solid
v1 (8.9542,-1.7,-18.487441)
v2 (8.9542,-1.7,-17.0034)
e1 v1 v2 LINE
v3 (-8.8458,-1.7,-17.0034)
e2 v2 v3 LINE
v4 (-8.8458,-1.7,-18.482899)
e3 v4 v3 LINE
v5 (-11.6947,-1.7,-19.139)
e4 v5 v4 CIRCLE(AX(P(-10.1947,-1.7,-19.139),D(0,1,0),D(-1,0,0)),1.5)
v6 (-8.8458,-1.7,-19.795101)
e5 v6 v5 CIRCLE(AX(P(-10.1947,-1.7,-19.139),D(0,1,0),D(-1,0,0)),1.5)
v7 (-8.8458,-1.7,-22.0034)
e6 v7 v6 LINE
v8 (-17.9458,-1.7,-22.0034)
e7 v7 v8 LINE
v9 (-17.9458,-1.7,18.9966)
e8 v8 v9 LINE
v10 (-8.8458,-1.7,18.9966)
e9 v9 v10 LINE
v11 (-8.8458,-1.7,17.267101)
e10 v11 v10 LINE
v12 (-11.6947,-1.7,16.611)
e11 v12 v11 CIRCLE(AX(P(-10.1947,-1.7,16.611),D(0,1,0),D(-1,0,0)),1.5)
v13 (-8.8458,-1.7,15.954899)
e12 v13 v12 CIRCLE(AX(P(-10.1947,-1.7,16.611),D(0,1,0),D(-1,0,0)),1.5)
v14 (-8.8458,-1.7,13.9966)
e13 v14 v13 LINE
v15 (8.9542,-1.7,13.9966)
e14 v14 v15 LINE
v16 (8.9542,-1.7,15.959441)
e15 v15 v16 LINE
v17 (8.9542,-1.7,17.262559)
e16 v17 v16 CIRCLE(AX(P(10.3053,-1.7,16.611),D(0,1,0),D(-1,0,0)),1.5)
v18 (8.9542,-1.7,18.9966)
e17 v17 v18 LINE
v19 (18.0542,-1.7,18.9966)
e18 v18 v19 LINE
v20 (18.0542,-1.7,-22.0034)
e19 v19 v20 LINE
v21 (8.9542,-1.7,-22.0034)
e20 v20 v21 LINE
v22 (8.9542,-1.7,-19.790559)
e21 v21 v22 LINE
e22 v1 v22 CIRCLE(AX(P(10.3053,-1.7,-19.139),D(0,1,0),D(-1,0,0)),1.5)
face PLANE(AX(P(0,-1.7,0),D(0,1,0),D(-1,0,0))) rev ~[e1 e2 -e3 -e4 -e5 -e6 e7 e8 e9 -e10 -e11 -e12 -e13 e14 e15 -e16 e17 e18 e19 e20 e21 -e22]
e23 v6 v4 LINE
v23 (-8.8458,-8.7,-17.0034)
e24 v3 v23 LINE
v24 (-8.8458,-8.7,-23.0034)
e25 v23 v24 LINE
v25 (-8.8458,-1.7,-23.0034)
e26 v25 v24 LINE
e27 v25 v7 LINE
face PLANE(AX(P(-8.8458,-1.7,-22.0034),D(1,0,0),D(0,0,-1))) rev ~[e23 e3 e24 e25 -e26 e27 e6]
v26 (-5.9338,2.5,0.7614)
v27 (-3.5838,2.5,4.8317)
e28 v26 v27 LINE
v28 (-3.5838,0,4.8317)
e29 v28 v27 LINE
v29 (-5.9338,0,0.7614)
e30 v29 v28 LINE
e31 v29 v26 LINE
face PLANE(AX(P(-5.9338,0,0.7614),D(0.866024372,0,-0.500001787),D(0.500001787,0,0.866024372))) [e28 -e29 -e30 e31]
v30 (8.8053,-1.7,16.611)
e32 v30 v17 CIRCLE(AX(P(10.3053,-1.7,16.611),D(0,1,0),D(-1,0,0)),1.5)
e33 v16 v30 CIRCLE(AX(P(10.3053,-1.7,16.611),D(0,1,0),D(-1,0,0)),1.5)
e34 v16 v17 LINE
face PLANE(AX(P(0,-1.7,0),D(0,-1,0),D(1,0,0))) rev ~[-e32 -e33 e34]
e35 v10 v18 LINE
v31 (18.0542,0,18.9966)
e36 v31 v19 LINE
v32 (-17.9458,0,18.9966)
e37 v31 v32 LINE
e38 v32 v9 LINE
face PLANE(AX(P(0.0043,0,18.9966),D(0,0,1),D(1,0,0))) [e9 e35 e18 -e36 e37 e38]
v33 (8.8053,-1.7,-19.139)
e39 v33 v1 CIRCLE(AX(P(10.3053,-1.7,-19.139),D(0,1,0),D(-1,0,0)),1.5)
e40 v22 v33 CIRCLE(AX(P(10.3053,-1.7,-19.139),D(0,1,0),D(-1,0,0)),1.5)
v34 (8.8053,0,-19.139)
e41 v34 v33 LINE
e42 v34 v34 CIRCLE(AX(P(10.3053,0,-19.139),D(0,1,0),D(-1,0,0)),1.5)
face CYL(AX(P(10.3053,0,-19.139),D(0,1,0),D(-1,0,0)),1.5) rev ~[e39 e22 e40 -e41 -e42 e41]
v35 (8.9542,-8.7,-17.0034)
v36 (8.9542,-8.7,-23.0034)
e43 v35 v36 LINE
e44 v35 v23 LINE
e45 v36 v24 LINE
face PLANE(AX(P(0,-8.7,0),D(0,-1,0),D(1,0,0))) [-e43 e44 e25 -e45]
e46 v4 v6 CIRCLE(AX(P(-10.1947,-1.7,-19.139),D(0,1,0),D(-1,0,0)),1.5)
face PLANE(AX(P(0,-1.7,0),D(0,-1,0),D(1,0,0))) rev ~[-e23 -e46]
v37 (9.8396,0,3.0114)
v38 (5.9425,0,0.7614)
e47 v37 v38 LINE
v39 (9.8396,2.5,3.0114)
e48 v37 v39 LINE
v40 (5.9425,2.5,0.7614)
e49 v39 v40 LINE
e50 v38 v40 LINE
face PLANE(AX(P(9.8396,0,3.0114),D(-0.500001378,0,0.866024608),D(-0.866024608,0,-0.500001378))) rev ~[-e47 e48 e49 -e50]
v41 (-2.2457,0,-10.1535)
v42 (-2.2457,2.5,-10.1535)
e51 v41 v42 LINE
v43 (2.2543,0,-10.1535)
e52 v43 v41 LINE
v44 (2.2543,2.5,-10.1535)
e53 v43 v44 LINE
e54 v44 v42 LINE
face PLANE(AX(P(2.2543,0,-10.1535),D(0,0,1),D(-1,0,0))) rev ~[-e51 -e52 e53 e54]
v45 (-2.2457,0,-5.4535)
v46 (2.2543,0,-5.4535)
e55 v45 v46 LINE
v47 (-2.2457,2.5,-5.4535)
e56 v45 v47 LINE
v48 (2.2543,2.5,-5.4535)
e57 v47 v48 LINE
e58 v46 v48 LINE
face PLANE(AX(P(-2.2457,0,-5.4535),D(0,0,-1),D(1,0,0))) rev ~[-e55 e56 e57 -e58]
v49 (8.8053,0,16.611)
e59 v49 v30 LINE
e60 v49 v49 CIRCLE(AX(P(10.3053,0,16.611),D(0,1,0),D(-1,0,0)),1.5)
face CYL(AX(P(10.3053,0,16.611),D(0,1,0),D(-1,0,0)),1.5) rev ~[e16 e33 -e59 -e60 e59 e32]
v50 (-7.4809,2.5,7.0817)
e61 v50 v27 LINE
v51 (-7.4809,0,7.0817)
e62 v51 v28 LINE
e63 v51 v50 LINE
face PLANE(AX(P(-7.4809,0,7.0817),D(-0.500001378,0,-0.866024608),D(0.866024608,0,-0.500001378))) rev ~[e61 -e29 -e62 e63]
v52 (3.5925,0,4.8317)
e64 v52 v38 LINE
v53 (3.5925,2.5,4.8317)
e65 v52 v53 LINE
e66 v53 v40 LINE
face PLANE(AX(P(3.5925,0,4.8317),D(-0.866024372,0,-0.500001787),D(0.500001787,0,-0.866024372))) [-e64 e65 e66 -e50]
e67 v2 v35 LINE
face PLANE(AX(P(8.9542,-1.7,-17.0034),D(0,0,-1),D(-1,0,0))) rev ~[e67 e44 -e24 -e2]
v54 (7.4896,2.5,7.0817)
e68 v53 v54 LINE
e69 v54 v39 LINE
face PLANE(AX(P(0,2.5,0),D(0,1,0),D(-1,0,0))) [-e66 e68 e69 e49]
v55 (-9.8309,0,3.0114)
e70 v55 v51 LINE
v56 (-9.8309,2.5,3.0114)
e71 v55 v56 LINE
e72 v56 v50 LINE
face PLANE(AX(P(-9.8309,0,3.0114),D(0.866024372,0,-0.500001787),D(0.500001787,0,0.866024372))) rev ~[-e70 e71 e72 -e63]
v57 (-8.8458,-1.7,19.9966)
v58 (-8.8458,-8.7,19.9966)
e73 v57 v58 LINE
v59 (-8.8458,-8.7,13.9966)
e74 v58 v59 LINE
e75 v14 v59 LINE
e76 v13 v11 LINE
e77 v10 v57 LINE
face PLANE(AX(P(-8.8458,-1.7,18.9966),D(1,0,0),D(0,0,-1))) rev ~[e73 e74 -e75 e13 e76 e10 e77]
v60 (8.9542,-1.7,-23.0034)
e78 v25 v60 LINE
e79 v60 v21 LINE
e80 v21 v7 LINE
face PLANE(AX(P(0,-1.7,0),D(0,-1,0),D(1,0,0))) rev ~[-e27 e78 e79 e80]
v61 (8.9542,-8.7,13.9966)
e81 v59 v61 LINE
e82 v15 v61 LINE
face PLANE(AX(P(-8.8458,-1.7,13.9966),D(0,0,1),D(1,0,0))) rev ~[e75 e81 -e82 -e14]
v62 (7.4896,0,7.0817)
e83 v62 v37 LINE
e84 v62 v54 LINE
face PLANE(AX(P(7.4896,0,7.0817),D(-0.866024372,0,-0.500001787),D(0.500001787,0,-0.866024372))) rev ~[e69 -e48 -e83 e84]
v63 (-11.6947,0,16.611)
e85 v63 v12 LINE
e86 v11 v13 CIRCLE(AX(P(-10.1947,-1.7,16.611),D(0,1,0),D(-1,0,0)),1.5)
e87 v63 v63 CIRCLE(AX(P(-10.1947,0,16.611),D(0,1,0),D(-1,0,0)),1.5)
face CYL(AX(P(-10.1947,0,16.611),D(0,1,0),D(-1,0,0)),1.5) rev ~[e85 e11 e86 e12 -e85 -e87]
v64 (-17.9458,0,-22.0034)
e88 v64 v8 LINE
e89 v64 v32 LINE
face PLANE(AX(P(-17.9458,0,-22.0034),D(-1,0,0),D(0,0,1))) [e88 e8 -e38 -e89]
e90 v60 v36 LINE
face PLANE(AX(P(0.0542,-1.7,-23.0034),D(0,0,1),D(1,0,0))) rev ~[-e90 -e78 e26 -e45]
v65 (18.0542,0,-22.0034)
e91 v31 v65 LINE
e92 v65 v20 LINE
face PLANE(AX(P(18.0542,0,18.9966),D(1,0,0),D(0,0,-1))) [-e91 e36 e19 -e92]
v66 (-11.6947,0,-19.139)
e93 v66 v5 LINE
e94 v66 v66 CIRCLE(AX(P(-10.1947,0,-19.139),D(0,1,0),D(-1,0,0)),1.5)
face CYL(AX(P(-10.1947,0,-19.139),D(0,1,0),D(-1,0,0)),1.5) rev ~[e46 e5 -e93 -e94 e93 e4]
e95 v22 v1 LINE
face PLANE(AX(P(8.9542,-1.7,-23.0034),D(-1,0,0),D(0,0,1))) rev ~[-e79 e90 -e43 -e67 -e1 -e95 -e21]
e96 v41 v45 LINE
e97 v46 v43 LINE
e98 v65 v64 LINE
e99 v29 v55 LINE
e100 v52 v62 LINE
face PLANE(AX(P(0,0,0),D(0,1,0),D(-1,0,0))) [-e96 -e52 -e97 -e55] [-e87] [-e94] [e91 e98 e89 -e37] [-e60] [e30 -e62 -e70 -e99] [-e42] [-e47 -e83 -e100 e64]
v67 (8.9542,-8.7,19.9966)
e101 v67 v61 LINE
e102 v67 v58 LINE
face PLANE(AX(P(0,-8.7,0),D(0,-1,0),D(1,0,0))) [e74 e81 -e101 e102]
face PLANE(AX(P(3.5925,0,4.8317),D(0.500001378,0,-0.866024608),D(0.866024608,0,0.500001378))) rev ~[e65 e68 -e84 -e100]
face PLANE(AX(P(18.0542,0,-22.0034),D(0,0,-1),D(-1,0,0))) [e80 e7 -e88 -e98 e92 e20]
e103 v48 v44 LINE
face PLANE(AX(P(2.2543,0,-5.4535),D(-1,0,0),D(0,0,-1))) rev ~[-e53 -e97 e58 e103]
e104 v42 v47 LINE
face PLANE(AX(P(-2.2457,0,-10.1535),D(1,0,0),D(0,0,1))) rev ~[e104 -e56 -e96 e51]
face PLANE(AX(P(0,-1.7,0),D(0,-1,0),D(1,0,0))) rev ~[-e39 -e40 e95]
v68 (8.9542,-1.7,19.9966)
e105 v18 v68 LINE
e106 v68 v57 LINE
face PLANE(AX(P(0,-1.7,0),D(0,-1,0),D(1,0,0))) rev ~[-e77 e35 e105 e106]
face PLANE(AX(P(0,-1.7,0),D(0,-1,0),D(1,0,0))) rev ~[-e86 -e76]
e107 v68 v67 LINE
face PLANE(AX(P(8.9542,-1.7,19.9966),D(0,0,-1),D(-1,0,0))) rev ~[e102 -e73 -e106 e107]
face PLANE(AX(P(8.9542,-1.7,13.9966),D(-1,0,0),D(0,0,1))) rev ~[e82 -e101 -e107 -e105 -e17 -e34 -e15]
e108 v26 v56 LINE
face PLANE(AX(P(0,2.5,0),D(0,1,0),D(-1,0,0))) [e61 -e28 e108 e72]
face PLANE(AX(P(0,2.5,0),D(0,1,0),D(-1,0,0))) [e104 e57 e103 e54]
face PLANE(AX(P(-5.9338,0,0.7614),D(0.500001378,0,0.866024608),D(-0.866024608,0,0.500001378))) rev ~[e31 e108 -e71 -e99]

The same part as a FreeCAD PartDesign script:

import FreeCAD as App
import Part
import Sketcher
Q = App.Units.Quantity

doc = App.newDocument("Part")
body = doc.addObject("PartDesign::Body", "Body")

# Sketch on XZ plane
sketch1 = body.newObject("Sketcher::SketchObject", "Sketch")
sketch1.AttachmentSupport = (doc.getObject("XZ_Plane"), [""])
sketch1.MapMode = "FlatFace"
sketch1.addGeometry(Part.LineSegment(App.Vector(18.1, 19, 0), App.Vector(18.1, -22, 0)), False)
sketch1.addGeometry(Part.LineSegment(App.Vector(18.1, -22, 0), App.Vector(-17.9, -22, 0)), False)
sketch1.addGeometry(Part.LineSegment(App.Vector(-17.9, -22, 0), App.Vector(-17.9, 19, 0)), False)
sketch1.addGeometry(Part.LineSegment(App.Vector(-17.9, 19, 0), App.Vector(18.1, 19, 0)), False)
sketch1.addGeometry(Part.Circle(App.Vector(10.3, -19.1, 0), App.Vector(0, 0, 1), 1.5), False)
sketch1.addGeometry(Part.Circle(App.Vector(-10.2, -19.1, 0), App.Vector(0, 0, 1), 1.5), False)
sketch1.addGeometry(Part.Circle(App.Vector(10.3, 16.6, 0), App.Vector(0, 0, 1), 1.5), False)
sketch1.addGeometry(Part.Circle(App.Vector(-10.2, 16.6, 0), App.Vector(0, 0, 1), 1.5), False)
sketch1.addConstraint(Sketcher.Constraint("Coincident", 0, 2, 1, 1))
sketch1.addConstraint(Sketcher.Constraint("Coincident", 1, 2, 2, 1))
sketch1.addConstraint(Sketcher.Constraint("Coincident", 2, 2, 3, 1))
sketch1.addConstraint(Sketcher.Constraint("Coincident", 3, 2, 0, 1))
sketch1.addConstraint(Sketcher.Constraint("Vertical", 0))
sketch1.addConstraint(Sketcher.Constraint("Horizontal", 1))
sketch1.addConstraint(Sketcher.Constraint("Vertical", 2))
sketch1.addConstraint(Sketcher.Constraint("Horizontal", 3))
sketch1.addConstraint(Sketcher.Constraint("Equal", 4, 5))
sketch1.addConstraint(Sketcher.Constraint("Equal", 5, 6))
sketch1.addConstraint(Sketcher.Constraint("Equal", 6, 7))
sketch1.addConstraint(Sketcher.Constraint("Horizontal", 4, 3, 5, 3))
sketch1.addConstraint(Sketcher.Constraint("Horizontal", 6, 3, 7, 3))
sketch1.addConstraint(Sketcher.Constraint("Vertical", 4, 3, 6, 3))
sketch1.addConstraint(Sketcher.Constraint("Vertical", 5, 3, 7, 3))
sketch1.addConstraint(Sketcher.Constraint("Diameter", 4, 3.0))
sketch1.addConstraint(Sketcher.Constraint("DistanceX", 1, 2, 1, 1, 36.0))
sketch1.addConstraint(Sketcher.Constraint("DistanceY", 0, 2, 0, 1, 41.0))
sketch1.addConstraint(Sketcher.Constraint("DistanceX", 5, 3, 4, 3, 20.5))
sketch1.addConstraint(Sketcher.Constraint("DistanceY", 4, 3, 6, 3, 35.75))
sketch1.addConstraint(Sketcher.Constraint("DistanceY", 4, 3, -1, 1, 19.139))
sketch1.addConstraint(Sketcher.Constraint("DistanceX", 4, 3, 0, 2, 7.749))
sketch1.addConstraint(Sketcher.Constraint("DistanceX", -1, 1, 4, 3, 10.3053))
sketch1.addConstraint(Sketcher.Constraint("DistanceY", 0, 2, -1, 1, 22.0034))
pad1 = body.newObject("PartDesign::Pad", "Pad")
pad1.Profile = sketch1
pad1.Length = 1.7

# Sketch on XZ plane
sketch2 = body.newObject("Sketcher::SketchObject", "Sketch001")
sketch2.AttachmentSupport = (doc.getObject("XZ_Plane"), [""])
sketch2.MapMode = "FlatFace"
sketch2.addGeometry(Part.LineSegment(App.Vector(-2.2, -5.5, 0), App.Vector(2.3, -5.5, 0)), False)
sketch2.addGeometry(Part.LineSegment(App.Vector(2.3, -5.5, 0), App.Vector(2.3, -10.2, 0)), False)
sketch2.addGeometry(Part.LineSegment(App.Vector(2.3, -10.2, 0), App.Vector(-2.2, -10.2, 0)), False)
sketch2.addGeometry(Part.LineSegment(App.Vector(-2.2, -10.2, 0), App.Vector(-2.2, -5.5, 0)), False)
sketch2.addGeometry(Part.LineSegment(App.Vector(-3.6, 4.8, 0), App.Vector(-5.9, 0.8, 0)), False)
sketch2.addGeometry(Part.LineSegment(App.Vector(-5.9, 0.8, 0), App.Vector(-9.8, 3, 0)), False)
sketch2.addGeometry(Part.LineSegment(App.Vector(-9.8, 3, 0), App.Vector(-7.5, 7.1, 0)), False)
sketch2.addGeometry(Part.LineSegment(App.Vector(-7.5, 7.1, 0), App.Vector(-3.6, 4.8, 0)), False)
sketch2.addGeometry(Part.LineSegment(App.Vector(5.9, 0.8, 0), App.Vector(3.6, 4.8, 0)), False)
sketch2.addGeometry(Part.LineSegment(App.Vector(3.6, 4.8, 0), App.Vector(7.5, 7.1, 0)), False)
sketch2.addGeometry(Part.LineSegment(App.Vector(7.5, 7.1, 0), App.Vector(9.8, 3, 0)), False)
sketch2.addGeometry(Part.LineSegment(App.Vector(9.8, 3, 0), App.Vector(5.9, 0.8, 0)), False)
sketch2.addConstraint(Sketcher.Constraint("Coincident", 0, 2, 1, 1))
sketch2.addConstraint(Sketcher.Constraint("Coincident", 1, 2, 2, 1))
sketch2.addConstraint(Sketcher.Constraint("Coincident", 2, 2, 3, 1))
sketch2.addConstraint(Sketcher.Constraint("Coincident", 3, 2, 0, 1))
sketch2.addConstraint(Sketcher.Constraint("Coincident", 4, 2, 5, 1))
sketch2.addConstraint(Sketcher.Constraint("Coincident", 5, 2, 6, 1))
sketch2.addConstraint(Sketcher.Constraint("Coincident", 6, 2, 7, 1))
sketch2.addConstraint(Sketcher.Constraint("Coincident", 7, 2, 4, 1))
sketch2.addConstraint(Sketcher.Constraint("Coincident", 8, 2, 9, 1))
sketch2.addConstraint(Sketcher.Constraint("Coincident", 9, 2, 10, 1))
sketch2.addConstraint(Sketcher.Constraint("Coincident", 10, 2, 11, 1))
sketch2.addConstraint(Sketcher.Constraint("Coincident", 11, 2, 8, 1))
sketch2.addConstraint(Sketcher.Constraint("Horizontal", 0))
sketch2.addConstraint(Sketcher.Constraint("Vertical", 1))
sketch2.addConstraint(Sketcher.Constraint("Horizontal", 2))
sketch2.addConstraint(Sketcher.Constraint("Vertical", 3))
sketch2.addConstraint(Sketcher.Constraint("Perpendicular", 4, 5))
sketch2.addConstraint(Sketcher.Constraint("Perpendicular", 5, 6))
sketch2.addConstraint(Sketcher.Constraint("Perpendicular", 6, 7))
sketch2.addConstraint(Sketcher.Constraint("Perpendicular", 8, 9))
sketch2.addConstraint(Sketcher.Constraint("Perpendicular", 9, 10))
sketch2.addConstraint(Sketcher.Constraint("Perpendicular", 10, 11))
sketch2.addConstraint(Sketcher.Constraint("Horizontal", 7, 2, 8, 2))
sketch2.addConstraint(Sketcher.Constraint("Horizontal", 6, 2, 9, 2))
sketch2.addConstraint(Sketcher.Constraint("Horizontal", 5, 2, 10, 2))
sketch2.addConstraint(Sketcher.Constraint("Equal", 6, 8))
sketch2.addConstraint(Sketcher.Constraint("DistanceX", 0, 1, 0, 2, 4.5))
sketch2.addConstraint(Sketcher.Constraint("DistanceY", 1, 2, 1, 1, 4.7))
sketch2.addConstraint(Sketcher.Constraint("Distance", 4, 4.7))
sketch2.addConstraint(Sketcher.Constraint("Distance", 5, 4.5))
sketch2.addConstraint(Sketcher.Constraint("Angle", 4, Q("-120 deg")))
sketch2.addConstraint(Sketcher.Constraint("DistanceX", 5, 2, -1, 1, 9.831))
sketch2.addConstraint(Sketcher.Constraint("DistanceX", 4, 2, 3, 2, 3.688))
sketch2.addConstraint(Sketcher.Constraint("DistanceY", 3, 2, 4, 2, 6.215))
sketch2.addConstraint(Sketcher.Constraint("DistanceY", 0, 2, -1, 1, 5.4535))
sketch2.addConstraint(Sketcher.Constraint("DistanceX", -1, 1, 8, 2, 3.5925))
pad2 = body.newObject("PartDesign::Pad", "Pad001")
pad2.Profile = sketch2
pad2.Length = 2.5
pad2.Reversed = True

# Sketch on XZ plane
sketch3 = body.newObject("Sketcher::SketchObject", "Sketch002")
sketch3.AttachmentSupport = (doc.getObject("XZ_Plane"), [""])
sketch3.MapMode = "FlatFace"
sketch3.AttachmentOffset = App.Placement(App.Vector(0, 0, 1.7), App.Rotation())
sketch3.addGeometry(Part.LineSegment(App.Vector(9, 14, 0), App.Vector(9, 20, 0)), False)
sketch3.addGeometry(Part.LineSegment(App.Vector(9, 20, 0), App.Vector(-9, 20, 0)), False)
sketch3.addGeometry(Part.LineSegment(App.Vector(-9, 20, 0), App.Vector(-9, 14, 0)), False)
sketch3.addGeometry(Part.LineSegment(App.Vector(-9, 14, 0), App.Vector(9, 14, 0)), False)
sketch3.addGeometry(Part.LineSegment(App.Vector(9, -23, 0), App.Vector(9, -17, 0)), False)
sketch3.addGeometry(Part.LineSegment(App.Vector(9, -17, 0), App.Vector(-9, -17, 0)), False)
sketch3.addGeometry(Part.LineSegment(App.Vector(-9, -17, 0), App.Vector(-9, -23, 0)), False)
sketch3.addGeometry(Part.LineSegment(App.Vector(-9, -23, 0), App.Vector(9, -23, 0)), False)
sketch3.addConstraint(Sketcher.Constraint("Coincident", 0, 2, 1, 1))
sketch3.addConstraint(Sketcher.Constraint("Coincident", 1, 2, 2, 1))
sketch3.addConstraint(Sketcher.Constraint("Coincident", 2, 2, 3, 1))
sketch3.addConstraint(Sketcher.Constraint("Coincident", 3, 2, 0, 1))
sketch3.addConstraint(Sketcher.Constraint("Coincident", 4, 2, 5, 1))
sketch3.addConstraint(Sketcher.Constraint("Coincident", 5, 2, 6, 1))
sketch3.addConstraint(Sketcher.Constraint("Coincident", 6, 2, 7, 1))
sketch3.addConstraint(Sketcher.Constraint("Coincident", 7, 2, 4, 1))
sketch3.addConstraint(Sketcher.Constraint("Vertical", 0))
sketch3.addConstraint(Sketcher.Constraint("Horizontal", 1))
sketch3.addConstraint(Sketcher.Constraint("Vertical", 2))
sketch3.addConstraint(Sketcher.Constraint("Horizontal", 3))
sketch3.addConstraint(Sketcher.Constraint("Vertical", 4))
sketch3.addConstraint(Sketcher.Constraint("Horizontal", 5))
sketch3.addConstraint(Sketcher.Constraint("Vertical", 6))
sketch3.addConstraint(Sketcher.Constraint("Horizontal", 7))
sketch3.addConstraint(Sketcher.Constraint("Vertical", 3, 2, 4, 2))
sketch3.addConstraint(Sketcher.Constraint("Vertical", 2, 2, 5, 2))
sketch3.addConstraint(Sketcher.Constraint("Equal", 2, 4))
sketch3.addConstraint(Sketcher.Constraint("DistanceY", 0, 1, 0, 2, 6.0))
sketch3.addConstraint(Sketcher.Constraint("DistanceX", 1, 2, 1, 1, 17.8))
sketch3.addConstraint(Sketcher.Constraint("DistanceY", 4, 2, 3, 2, 31.0))
sketch3.addConstraint(Sketcher.Constraint("DistanceX", -1, 1, 0, 2, 8.9542))
sketch3.addConstraint(Sketcher.Constraint("DistanceY", -1, 1, 0, 2, 19.9966))
pad3 = body.newObject("PartDesign::Pad", "Pad002")
pad3.Profile = sketch3
pad3.Length = 7

doc.recompute()
